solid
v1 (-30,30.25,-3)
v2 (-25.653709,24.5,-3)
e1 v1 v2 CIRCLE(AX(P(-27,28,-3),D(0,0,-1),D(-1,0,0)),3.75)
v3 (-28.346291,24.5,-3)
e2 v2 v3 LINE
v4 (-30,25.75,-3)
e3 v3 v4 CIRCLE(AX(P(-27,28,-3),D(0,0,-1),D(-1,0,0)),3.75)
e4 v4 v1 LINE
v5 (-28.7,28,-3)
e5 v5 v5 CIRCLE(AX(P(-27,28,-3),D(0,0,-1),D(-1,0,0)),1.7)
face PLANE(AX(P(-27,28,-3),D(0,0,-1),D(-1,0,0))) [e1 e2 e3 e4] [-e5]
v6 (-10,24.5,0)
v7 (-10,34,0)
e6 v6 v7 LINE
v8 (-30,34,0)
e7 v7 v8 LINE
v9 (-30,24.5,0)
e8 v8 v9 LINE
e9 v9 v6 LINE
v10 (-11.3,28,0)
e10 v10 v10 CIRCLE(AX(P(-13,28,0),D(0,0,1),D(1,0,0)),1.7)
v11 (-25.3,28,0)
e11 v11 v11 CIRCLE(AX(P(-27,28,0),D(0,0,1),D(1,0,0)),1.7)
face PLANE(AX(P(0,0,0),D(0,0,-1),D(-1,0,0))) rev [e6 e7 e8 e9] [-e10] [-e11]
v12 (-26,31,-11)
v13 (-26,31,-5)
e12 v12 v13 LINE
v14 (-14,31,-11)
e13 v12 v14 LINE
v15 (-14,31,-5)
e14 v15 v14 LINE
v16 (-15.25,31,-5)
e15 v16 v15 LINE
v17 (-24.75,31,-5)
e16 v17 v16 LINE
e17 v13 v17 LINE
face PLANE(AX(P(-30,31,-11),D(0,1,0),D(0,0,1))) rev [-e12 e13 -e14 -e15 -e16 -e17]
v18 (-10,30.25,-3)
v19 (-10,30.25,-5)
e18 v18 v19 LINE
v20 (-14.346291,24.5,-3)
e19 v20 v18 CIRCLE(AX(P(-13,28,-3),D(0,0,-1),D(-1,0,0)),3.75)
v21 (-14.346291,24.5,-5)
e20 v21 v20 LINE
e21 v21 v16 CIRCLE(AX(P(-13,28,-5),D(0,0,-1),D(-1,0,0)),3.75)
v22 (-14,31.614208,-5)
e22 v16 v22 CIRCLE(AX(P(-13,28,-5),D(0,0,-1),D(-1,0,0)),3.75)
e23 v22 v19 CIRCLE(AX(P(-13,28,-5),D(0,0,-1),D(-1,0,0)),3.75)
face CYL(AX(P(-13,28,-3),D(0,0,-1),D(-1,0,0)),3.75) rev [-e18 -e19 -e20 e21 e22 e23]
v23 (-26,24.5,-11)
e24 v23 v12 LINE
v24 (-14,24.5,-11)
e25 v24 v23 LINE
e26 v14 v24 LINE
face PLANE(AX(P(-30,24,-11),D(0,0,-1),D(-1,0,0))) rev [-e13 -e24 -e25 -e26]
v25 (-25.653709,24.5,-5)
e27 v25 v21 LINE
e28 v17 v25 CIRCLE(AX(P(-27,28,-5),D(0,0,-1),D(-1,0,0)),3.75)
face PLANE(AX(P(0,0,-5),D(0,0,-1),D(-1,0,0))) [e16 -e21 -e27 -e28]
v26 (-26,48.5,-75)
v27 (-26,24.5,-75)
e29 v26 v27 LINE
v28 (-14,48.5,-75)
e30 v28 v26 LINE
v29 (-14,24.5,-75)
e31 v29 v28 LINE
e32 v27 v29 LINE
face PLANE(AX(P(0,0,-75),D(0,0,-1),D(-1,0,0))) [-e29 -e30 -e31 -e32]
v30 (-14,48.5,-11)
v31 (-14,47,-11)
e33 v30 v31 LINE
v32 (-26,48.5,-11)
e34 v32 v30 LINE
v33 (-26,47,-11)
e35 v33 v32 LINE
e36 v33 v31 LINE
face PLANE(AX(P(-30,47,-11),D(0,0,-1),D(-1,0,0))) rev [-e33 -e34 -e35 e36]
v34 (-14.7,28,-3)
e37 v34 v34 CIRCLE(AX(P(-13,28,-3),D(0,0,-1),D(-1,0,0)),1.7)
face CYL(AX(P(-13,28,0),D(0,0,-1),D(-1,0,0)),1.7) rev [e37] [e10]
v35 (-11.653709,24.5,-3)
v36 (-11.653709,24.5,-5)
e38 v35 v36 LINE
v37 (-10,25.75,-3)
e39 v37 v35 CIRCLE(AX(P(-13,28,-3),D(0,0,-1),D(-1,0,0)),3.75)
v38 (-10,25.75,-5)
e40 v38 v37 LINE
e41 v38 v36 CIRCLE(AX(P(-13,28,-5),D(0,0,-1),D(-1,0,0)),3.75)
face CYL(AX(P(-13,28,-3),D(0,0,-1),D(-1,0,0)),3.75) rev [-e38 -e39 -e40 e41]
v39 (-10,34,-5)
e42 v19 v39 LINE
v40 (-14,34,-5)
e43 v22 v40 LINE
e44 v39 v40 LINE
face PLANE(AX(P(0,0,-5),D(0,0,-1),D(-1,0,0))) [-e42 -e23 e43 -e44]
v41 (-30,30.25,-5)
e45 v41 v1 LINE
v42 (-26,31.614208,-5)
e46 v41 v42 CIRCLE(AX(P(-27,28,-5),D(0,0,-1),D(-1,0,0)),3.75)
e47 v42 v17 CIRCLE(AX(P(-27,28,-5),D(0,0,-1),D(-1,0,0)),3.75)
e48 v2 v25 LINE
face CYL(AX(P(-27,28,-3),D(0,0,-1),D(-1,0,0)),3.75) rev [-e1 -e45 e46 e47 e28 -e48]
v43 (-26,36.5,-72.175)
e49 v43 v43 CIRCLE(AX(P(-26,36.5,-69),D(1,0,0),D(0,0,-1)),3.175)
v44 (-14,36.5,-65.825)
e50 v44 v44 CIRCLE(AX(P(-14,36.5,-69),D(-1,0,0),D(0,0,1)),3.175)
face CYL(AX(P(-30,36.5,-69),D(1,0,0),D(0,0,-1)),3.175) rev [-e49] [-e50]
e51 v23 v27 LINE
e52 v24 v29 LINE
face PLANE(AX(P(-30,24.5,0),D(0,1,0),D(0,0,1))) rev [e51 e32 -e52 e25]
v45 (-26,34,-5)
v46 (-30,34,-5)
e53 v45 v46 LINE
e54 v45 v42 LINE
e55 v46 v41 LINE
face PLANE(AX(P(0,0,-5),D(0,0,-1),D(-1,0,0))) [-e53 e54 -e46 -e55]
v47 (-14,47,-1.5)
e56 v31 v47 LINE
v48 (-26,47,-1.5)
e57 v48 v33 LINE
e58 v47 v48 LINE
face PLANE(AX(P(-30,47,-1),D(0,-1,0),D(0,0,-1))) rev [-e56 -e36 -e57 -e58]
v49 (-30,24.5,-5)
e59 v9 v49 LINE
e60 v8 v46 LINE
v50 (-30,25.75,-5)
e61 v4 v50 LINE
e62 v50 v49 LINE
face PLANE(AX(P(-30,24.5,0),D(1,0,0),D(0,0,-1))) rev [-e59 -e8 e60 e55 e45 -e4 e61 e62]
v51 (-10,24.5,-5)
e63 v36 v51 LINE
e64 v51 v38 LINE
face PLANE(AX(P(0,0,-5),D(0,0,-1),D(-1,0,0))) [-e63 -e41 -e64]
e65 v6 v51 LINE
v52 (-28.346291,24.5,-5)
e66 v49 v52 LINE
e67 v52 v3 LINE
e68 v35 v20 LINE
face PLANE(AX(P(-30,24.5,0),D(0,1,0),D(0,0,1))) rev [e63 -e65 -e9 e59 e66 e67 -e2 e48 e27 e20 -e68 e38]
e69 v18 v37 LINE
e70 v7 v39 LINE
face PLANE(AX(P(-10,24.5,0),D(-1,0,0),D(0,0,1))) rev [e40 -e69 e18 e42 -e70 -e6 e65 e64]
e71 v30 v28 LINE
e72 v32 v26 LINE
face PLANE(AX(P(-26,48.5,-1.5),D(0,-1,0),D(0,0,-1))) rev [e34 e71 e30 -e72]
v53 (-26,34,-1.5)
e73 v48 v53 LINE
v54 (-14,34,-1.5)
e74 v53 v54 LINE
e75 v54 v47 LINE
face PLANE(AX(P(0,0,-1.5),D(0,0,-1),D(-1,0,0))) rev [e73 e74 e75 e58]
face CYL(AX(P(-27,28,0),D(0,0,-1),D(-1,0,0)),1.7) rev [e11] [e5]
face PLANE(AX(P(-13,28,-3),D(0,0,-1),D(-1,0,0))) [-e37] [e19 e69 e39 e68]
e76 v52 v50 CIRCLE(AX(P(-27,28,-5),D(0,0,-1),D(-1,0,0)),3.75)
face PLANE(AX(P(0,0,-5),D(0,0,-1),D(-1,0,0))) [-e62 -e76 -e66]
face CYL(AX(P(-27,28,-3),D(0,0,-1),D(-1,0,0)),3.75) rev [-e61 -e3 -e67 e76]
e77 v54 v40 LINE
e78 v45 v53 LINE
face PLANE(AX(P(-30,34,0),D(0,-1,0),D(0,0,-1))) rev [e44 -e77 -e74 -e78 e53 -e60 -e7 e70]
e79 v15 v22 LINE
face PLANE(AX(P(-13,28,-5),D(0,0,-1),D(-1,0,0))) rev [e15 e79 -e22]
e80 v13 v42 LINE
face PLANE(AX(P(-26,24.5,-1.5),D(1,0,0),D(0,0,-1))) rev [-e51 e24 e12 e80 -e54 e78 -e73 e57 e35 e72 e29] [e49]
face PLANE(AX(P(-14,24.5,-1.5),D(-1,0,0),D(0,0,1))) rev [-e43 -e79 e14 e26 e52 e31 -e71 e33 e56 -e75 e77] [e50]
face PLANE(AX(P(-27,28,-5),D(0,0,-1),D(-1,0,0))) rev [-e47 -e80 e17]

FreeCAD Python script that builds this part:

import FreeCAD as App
import Part
import Sketcher

V = App.Vector

doc = App.newDocument("Part")
body = doc.addObject("PartDesign::Body", "Body")

sketch1 = body.newObject("Sketcher::SketchObject", "Sketch")
sketch1.AttachmentSupport = (doc.getObject("XY_Plane"), [""])
sketch1.MapMode = "FlatFace"
sketch1.AttachmentOffset = App.Placement(V(0, 0, -5), App.Rotation())
sketch1.addGeometry(Part.LineSegment(V(-30, 34, 0), V(-30, 24.5, 0)), False)
sketch1.addGeometry(Part.LineSegment(V(-30, 24.5, 0), V(-10, 24.5, 0)), False)
sketch1.addGeometry(Part.LineSegment(V(-10, 24.5, 0), V(-10, 34, 0)), False)
sketch1.addGeometry(Part.LineSegment(V(-10, 34, 0), V(-30, 34, 0)), False)
sketch1.addGeometry(Part.Circle(V(-27, 28, 0), V(0, 0, 1), 1.7), False)
sketch1.addGeometry(Part.Circle(V(-13, 28, 0), V(0, 0, 1), 1.7), False)
sketch1.addConstraint(Sketcher.Constraint("Coincident", 0, 2, 1, 1))
sketch1.addConstraint(Sketcher.Constraint("Coincident", 1, 2, 2, 1))
sketch1.addConstraint(Sketcher.Constraint("Coincident", 2, 2, 3, 1))
sketch1.addConstraint(Sketcher.Constraint("Coincident", 3, 2, 0, 1))
sketch1.addConstraint(Sketcher.Constraint("Vertical", 0))
sketch1.addConstraint(Sketcher.Constraint("Horizontal", 1))
sketch1.addConstraint(Sketcher.Constraint("Vertical", 2))
sketch1.addConstraint(Sketcher.Constraint("Horizontal", 3))
sketch1.addConstraint(Sketcher.Constraint("Equal", 4, 5))
sketch1.addConstraint(Sketcher.Constraint("Horizontal", 4, 3, 5, 3))
sketch1.addConstraint(Sketcher.Constraint("Diameter", 4, 3.4))
sketch1.addConstraint(Sketcher.Constraint("DistanceX", 1, 1, 1, 2, 20.0))
sketch1.addConstraint(Sketcher.Constraint("DistanceY", 0, 2, 0, 1, 9.5))
sketch1.addConstraint(Sketcher.Constraint("DistanceX", 4, 3, -1, 1, 27.0))
sketch1.addConstraint(Sketcher.Constraint("DistanceY", -1, 1, 4, 3, 28.0))
sketch1.addConstraint(Sketcher.Constraint("DistanceX", 5, 3, -1, 1, 13.0))
sketch1.addConstraint(Sketcher.Constraint("DistanceX", 0, 2, -1, 1, 30.0))
sketch1.addConstraint(Sketcher.Constraint("DistanceY", -1, 1, 2, 2, 34.0))
pad1 = body.newObject("PartDesign::Pad", "Pad")
pad1.Profile = sketch1
pad1.Length = 5

sketch2 = body.newObject("Sketcher::SketchObject", "Sketch001")
sketch2.AttachmentSupport = (doc.getObject("XY_Plane"), [""])
sketch2.MapMode = "FlatFace"
sketch2.AttachmentOffset = App.Placement(V(0, 0, -69), App.Rotation())
sketch2.addGeometry(Part.LineSegment(V(-26, 48, 0), V(-26, 24, 0)), False)
sketch2.addGeometry(Part.LineSegment(V(-26, 24, 0), V(-14, 24, 0)), False)
sketch2.addGeometry(Part.LineSegment(V(-14, 24, 0), V(-14, 48, 0)), False)
sketch2.addGeometry(Part.LineSegment(V(-14, 48, 0), V(-26, 48, 0)), False)
sketch2.addConstraint(Sketcher.Constraint("Coincident", 0, 2, 1, 1))
sketch2.addConstraint(Sketcher.Constraint("Coincident", 1, 2, 2, 1))
sketch2.addConstraint(Sketcher.Constraint("Coincident", 2, 2, 3, 1))
sketch2.addConstraint(Sketcher.Constraint("Coincident", 3, 2, 0, 1))
sketch2.addConstraint(Sketcher.Constraint("Vertical", 0))
sketch2.addConstraint(Sketcher.Constraint("Horizontal", 1))
sketch2.addConstraint(Sketcher.Constraint("Vertical", 2))
sketch2.addConstraint(Sketcher.Constraint("Horizontal", 3))
sketch2.addConstraint(Sketcher.Constraint("DistanceX", 1, 1, 1, 2, 12.0))
sketch2.addConstraint(Sketcher.Constraint("DistanceY", 0, 2, 0, 1, 24.0))
sketch2.addConstraint(Sketcher.Constraint("DistanceX", 0, 2, -1, 1, 26.0))
sketch2.addConstraint(Sketcher.Constraint("DistanceY", -1, 1, 0, 2, 24.5))
pad2 = body.newObject("PartDesign::Pad", "Pad001")
pad2.Profile = sketch2
pad2.Length = 67.5

sketch3 = body.newObject("Sketcher::SketchObject", "Sketch002")
sketch3.AttachmentSupport = (doc.getObject("YZ_Plane"), [""])
sketch3.MapMode = "FlatFace"
sketch3.addGeometry(Part.Circle(V(36.5, -69, 0), V(0, 0, 1), 3.2), False)
sketch3.addConstraint(Sketcher.Constraint("Diameter", 0, 6.35))
sketch3.addConstraint(Sketcher.Constraint("DistanceY", 0, 3, -1, 1, 69.0))
sketch3.addConstraint(Sketcher.Constraint("DistanceX", -1, 1, 0, 3, 36.5))
pocket1 = body.newObject("PartDesign::Pocket", "Pocket")
pocket1.Profile = sketch3
pocket1.Type = "ThroughAll"
pocket1.Midplane = True

sketch4 = body.newObject("Sketcher::SketchObject", "Sketch003")
sketch4.AttachmentSupport = (doc.getObject("XY_Plane"), [""])
sketch4.MapMode = "FlatFace"
sketch4.AttachmentOffset = App.Placement(V(0, 0, -75), App.Rotation())
sketch4.addGeometry(Part.LineSegment(V(-26, 48, 0), V(-26, 24, 0)), False)
sketch4.addGeometry(Part.LineSegment(V(-26, 24, 0), V(-14, 24, 0)), False)
sketch4.addGeometry(Part.LineSegment(V(-14, 24, 0), V(-14, 48, 0)), False)
sketch4.addGeometry(Part.LineSegment(V(-14, 48, 0), V(-26, 48, 0)), False)
sketch4.addConstraint(Sketcher.Constraint("Coincident", 0, 2, 1, 1))
sketch4.addConstraint(Sketcher.Constraint("Coincident", 1, 2, 2, 1))
sketch4.addConstraint(Sketcher.Constraint("Coincident", 2, 2, 3, 1))
sketch4.addConstraint(Sketcher.Constraint("Coincident", 3, 2, 0, 1))
sketch4.addConstraint(Sketcher.Constraint("Vertical", 0))
sketch4.addConstraint(Sketcher.Constraint("Horizontal", 1))
sketch4.addConstraint(Sketcher.Constraint("Vertical", 2))
sketch4.addConstraint(Sketcher.Constraint("Horizontal", 3))
sketch4.addConstraint(Sketcher.Constraint("DistanceX", 1, 1, 1, 2, 12.0))
sketch4.addConstraint(Sketcher.Constraint("DistanceY", 0, 2, 0, 1, 24.0))
sketch4.addConstraint(Sketcher.Constraint("DistanceX", 0, 2, -1, 1, 26.0))
sketch4.addConstraint(Sketcher.Constraint("DistanceY", -1, 1, 0, 2, 24.5))
pad3 = body.newObject("PartDesign::Pad", "Pad002")
pad3.Profile = sketch4
pad3.Length = 6.01

sketch5 = body.newObject("Sketcher::SketchObject", "Sketch004")
sketch5.AttachmentSupport = (doc.getObject("YZ_Plane"), [""])
sketch5.MapMode = "FlatFace"
sketch5.addGeometry(Part.Circle(V(36.5, -69, 0), V(0, 0, 1), 3.2), False)
sketch5.addConstraint(Sketcher.Constraint("Diameter", 0, 6.35))
sketch5.addConstraint(Sketcher.Constraint("DistanceY", 0, 3, -1, 1, 69.0))
sketch5.addConstraint(Sketcher.Constraint("DistanceX", -1, 1, 0, 3, 36.5))
pocket2 = body.newObject("PartDesign::Pocket", "Pocket001")
pocket2.Profile = sketch5
pocket2.Type = "ThroughAll"
pocket2.Midplane = True

sketch6 = body.newObject("Sketcher::SketchObject", "Sketch005")
sketch6.AttachmentSupport = (doc.getObject("YZ_Plane"), [""])
sketch6.MapMode = "FlatFace"
sketch6.addGeometry(Part.LineSegment(V(31, -5, 0), V(24, -5, 0)), False)
sketch6.addGeometry(Part.LineSegment(V(24, -5, 0), V(24, -11, 0)), False)
sketch6.addGeometry(Part.LineSegment(V(24, -11, 0), V(31, -11, 0)), False)
sketch6.addGeometry(Part.LineSegment(V(31, -11, 0), V(31, -5, 0)), False)
sketch6.addGeometry(Part.LineSegment(V(49, -1, 0), V(47, -1, 0)), False)
sketch6.addGeometry(Part.LineSegment(V(47, -1, 0), V(47, -11, 0)), False)
sketch6.addGeometry(Part.LineSegment(V(47, -11, 0), V(49, -11, 0)), False)
sketch6.addGeometry(Part.LineSegment(V(49, -11, 0), V(49, -1, 0)), False)
sketch6.addConstraint(Sketcher.Constraint("Coincident", 0, 2, 1, 1))
sketch6.addConstraint(Sketcher.Constraint("Coincident", 1, 2, 2, 1))
sketch6.addConstraint(Sketcher.Constraint("Coincident", 2, 2, 3, 1))
sketch6.addConstraint(Sketcher.Constraint("Coincident", 3, 2, 0, 1))
sketch6.addConstraint(Sketcher.Constraint("Coincident", 4, 2, 5, 1))
sketch6.addConstraint(Sketcher.Constraint("Coincident", 5, 2, 6, 1))
sketch6.addConstraint(Sketcher.Constraint("Coincident", 6, 2, 7, 1))
sketch6.addConstraint(Sketcher.Constraint("Coincident", 7, 2, 4, 1))
sketch6.addConstraint(Sketcher.Constraint("Horizontal", 0))
sketch6.addConstraint(Sketcher.Constraint("Vertical", 1))
sketch6.addConstraint(Sketcher.Constraint("Horizontal", 2))
sketch6.addConstraint(Sketcher.Constraint("Vertical", 3))
sketch6.addConstraint(Sketcher.Constraint("Horizontal", 4))
sketch6.addConstraint(Sketcher.Constraint("Vertical", 5))
sketch6.addConstraint(Sketcher.Constraint("Horizontal", 6))
sketch6.addConstraint(Sketcher.Constraint("Vertical", 7))
sketch6.addConstraint(Sketcher.Constraint("Horizontal", 2, 2, 5, 2))
sketch6.addConstraint(Sketcher.Constraint("DistanceX", 0, 2, 0, 1, 7.0))
sketch6.addConstraint(Sketcher.Constraint("DistanceX", 4, 2, 4, 1, 2.0))
sketch6.addConstraint(Sketcher.Constraint("DistanceY", 1, 2, 1, 1, 6.0))
sketch6.addConstraint(Sketcher.Constraint("DistanceY", 5, 2, 5, 1, 10.0))
sketch6.addConstraint(Sketcher.Constraint("DistanceX", -1, 1, 0, 2, 24.0))
sketch6.addConstraint(Sketcher.Constraint("DistanceY", 0, 2, -1, 1, 5.0))
sketch6.addConstraint(Sketcher.Constraint("DistanceX", -1, 1, 4, 2, 47.0))
pocket3 = body.newObject("PartDesign::Pocket", "Pocket002")
pocket3.Profile = sketch6
pocket3.Type = "ThroughAll"
pocket3.Midplane = True

sketch7 = body.newObject("Sketcher::SketchObject", "Sketch006")
sketch7.AttachmentSupport = (doc.getObject("XY_Plane"), [""])
sketch7.MapMode = "FlatFace"
sketch7.AttachmentOffset = App.Placement(V(0, 0, -5.5), App.Rotation())
sketch7.addGeometry(Part.Circle(V(-27, 28, 0), V(0, 0, 1), 1.7), False)
sketch7.addGeometry(Part.Circle(V(-13, 28, 0), V(0, 0, 1), 1.7), False)
sketch7.addConstraint(Sketcher.Constraint("Equal", 0, 1))
sketch7.addConstraint(Sketcher.Constraint("Horizontal", 0, 3, 1, 3))
sketch7.addConstraint(Sketcher.Constraint("Diameter", 0, 3.4))
sketch7.addConstraint(Sketcher.Constraint("DistanceX", 0, 3, -1, 1, 27.0))
sketch7.addConstraint(Sketcher.Constraint("DistanceY", -1, 1, 0, 3, 28.0))
sketch7.addConstraint(Sketcher.Constraint("DistanceX", 1, 3, -1, 1, 13.0))
pocket4 = body.newObject("PartDesign::Pocket", "Pocket003")
pocket4.Profile = sketch7
pocket4.Length = 5.5
pocket4.Reversed = True

sketch8 = body.newObject("Sketcher::SketchObject", "Sketch007")
sketch8.AttachmentSupport = (doc.getObject("XY_Plane"), [""])
sketch8.MapMode = "FlatFace"
sketch8.AttachmentOffset = App.Placement(V(0, 0, -5), App.Rotation())
sketch8.addGeometry(Part.Circle(V(-27, 28, 0), V(0, 0, 1), 3.8), False)
sketch8.addGeometry(Part.Circle(V(-13, 28, 0), V(0, 0, 1), 3.8), False)
sketch8.addConstraint(Sketcher.Constraint("Equal", 0, 1))
sketch8.addConstraint(Sketcher.Constraint("Horizontal", 0, 3, 1, 3))
sketch8.addConstraint(Sketcher.Constraint("Diameter", 0, 7.5))
sketch8.addConstraint(Sketcher.Constraint("DistanceX", 0, 3, -1, 1, 27.0))
sketch8.addConstraint(Sketcher.Constraint("DistanceY", -1, 1, 0, 3, 28.0))
sketch8.addConstraint(Sketcher.Constraint("DistanceX", 1, 3, -1, 1, 13.0))
pocket5 = body.newObject("PartDesign::Pocket", "Pocket004")
pocket5.Profile = sketch8
pocket5.Length = 2
pocket5.Reversed = True

doc.recompute()
